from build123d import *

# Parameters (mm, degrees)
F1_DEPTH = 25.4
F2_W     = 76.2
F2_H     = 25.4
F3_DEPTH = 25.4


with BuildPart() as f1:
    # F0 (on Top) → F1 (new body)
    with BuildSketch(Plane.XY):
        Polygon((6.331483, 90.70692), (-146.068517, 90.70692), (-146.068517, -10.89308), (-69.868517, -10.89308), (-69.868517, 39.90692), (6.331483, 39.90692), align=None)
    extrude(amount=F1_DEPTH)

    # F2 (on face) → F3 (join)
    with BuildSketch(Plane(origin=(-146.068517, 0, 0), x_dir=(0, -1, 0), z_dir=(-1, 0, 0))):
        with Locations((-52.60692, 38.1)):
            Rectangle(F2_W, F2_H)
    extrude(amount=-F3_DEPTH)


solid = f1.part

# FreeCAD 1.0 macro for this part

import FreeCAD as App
import Part
import Sketcher
Q = App.Units.Quantity


def add_polygon(sketch, points):
    """Adds a closed chain of lines whose ends are joined by coincident constraints."""
    first, n = sketch.GeometryCount, len(points)
    for a, b in zip(points, points[1:] + points[:1]):
        sketch.addGeometry(Part.LineSegment(App.Vector(*a, 0), App.Vector(*b, 0)), False)
    for i in range(n):
        sketch.addConstraint(Sketcher.Constraint("Coincident", first + i, 2, first + (i + 1) % n, 1))

doc = App.newDocument("Part")
body = doc.addObject("PartDesign::Body", "Body")

# Sketch on XY plane
sketch1 = body.newObject("Sketcher::SketchObject", "Sketch")
sketch1.AttachmentSupport = (doc.getObject("XY_Plane"), [""])
sketch1.MapMode = "FlatFace"
add_polygon(sketch1, [(6, 91), (-146, 91), (-146, -11), (-70, -11), (-70, 40), (6, 40)])  # lines 0-5
sketch1.addConstraint(Sketcher.Constraint("Horizontal", 0))
sketch1.addConstraint(Sketcher.Constraint("Vertical", 1))
sketch1.addConstraint(Sketcher.Constraint("Horizontal", 2))
sketch1.addConstraint(Sketcher.Constraint("Vertical", 3))
sketch1.addConstraint(Sketcher.Constraint("Horizontal", 4))
sketch1.addConstraint(Sketcher.Constraint("Vertical", 5))
sketch1.addConstraint(Sketcher.Constraint("Equal", 2, 4))
sketch1.addConstraint(Sketcher.Constraint("Equal", 3, 5))
sketch1.addConstraint(Sketcher.Constraint("DistanceX", 0, 2, 0, 1, Q("6 in")))
sketch1.addConstraint(Sketcher.Constraint("DistanceY", 1, 2, 1, 1, Q("4 in")))
sketch1.addConstraint(Sketcher.Constraint("DistanceY", -1, 1, 0, 2, 90.70692))
sketch1.addConstraint(Sketcher.Constraint("DistanceX", 0, 2, -1, 1, 146.068517))
pad1 = body.newObject("PartDesign::Pad", "Pad")
pad1.Profile = sketch1
pad1.Length = Q("1 in")

# Sketch on YZ plane
sketch2 = body.newObject("Sketcher::SketchObject", "Sketch001")
sketch2.AttachmentSupport = (doc.getObject("YZ_Plane"), [""])
sketch2.MapMode = "FlatFace"
sketch2.AttachmentOffset = App.Placement(App.Vector(0, 0, -146.068517), App.Rotation())
add_polygon(sketch2, [(91, 51), (91, 25), (15, 25), (15, 51)])  # lines 0-3
sketch2.addConstraint(Sketcher.Constraint("Vertical", 0))
sketch2.addConstraint(Sketcher.Constraint("Horizontal", 1))
sketch2.addConstraint(Sketcher.Constraint("Vertical", 2))
sketch2.addConstraint(Sketcher.Constraint("Horizontal", 3))
sketch2.addConstraint(Sketcher.Constraint("DistanceX", 1, 2, 1, 1, Q("3 in")))
sketch2.addConstraint(Sketcher.Constraint("DistanceY", 0, 2, 0, 1, Q("1 in")))
sketch2.addConstraint(Sketcher.Constraint("DistanceY", -1, 1, 0, 2, Q("1 in")))
sketch2.addConstraint(Sketcher.Constraint("DistanceX", -1, 1, 0, 2, 90.70692))
pad2 = body.newObject("PartDesign::Pad", "Pad001")
pad2.Profile = sketch2
pad2.Length = Q("1 in")

doc.recompute()
